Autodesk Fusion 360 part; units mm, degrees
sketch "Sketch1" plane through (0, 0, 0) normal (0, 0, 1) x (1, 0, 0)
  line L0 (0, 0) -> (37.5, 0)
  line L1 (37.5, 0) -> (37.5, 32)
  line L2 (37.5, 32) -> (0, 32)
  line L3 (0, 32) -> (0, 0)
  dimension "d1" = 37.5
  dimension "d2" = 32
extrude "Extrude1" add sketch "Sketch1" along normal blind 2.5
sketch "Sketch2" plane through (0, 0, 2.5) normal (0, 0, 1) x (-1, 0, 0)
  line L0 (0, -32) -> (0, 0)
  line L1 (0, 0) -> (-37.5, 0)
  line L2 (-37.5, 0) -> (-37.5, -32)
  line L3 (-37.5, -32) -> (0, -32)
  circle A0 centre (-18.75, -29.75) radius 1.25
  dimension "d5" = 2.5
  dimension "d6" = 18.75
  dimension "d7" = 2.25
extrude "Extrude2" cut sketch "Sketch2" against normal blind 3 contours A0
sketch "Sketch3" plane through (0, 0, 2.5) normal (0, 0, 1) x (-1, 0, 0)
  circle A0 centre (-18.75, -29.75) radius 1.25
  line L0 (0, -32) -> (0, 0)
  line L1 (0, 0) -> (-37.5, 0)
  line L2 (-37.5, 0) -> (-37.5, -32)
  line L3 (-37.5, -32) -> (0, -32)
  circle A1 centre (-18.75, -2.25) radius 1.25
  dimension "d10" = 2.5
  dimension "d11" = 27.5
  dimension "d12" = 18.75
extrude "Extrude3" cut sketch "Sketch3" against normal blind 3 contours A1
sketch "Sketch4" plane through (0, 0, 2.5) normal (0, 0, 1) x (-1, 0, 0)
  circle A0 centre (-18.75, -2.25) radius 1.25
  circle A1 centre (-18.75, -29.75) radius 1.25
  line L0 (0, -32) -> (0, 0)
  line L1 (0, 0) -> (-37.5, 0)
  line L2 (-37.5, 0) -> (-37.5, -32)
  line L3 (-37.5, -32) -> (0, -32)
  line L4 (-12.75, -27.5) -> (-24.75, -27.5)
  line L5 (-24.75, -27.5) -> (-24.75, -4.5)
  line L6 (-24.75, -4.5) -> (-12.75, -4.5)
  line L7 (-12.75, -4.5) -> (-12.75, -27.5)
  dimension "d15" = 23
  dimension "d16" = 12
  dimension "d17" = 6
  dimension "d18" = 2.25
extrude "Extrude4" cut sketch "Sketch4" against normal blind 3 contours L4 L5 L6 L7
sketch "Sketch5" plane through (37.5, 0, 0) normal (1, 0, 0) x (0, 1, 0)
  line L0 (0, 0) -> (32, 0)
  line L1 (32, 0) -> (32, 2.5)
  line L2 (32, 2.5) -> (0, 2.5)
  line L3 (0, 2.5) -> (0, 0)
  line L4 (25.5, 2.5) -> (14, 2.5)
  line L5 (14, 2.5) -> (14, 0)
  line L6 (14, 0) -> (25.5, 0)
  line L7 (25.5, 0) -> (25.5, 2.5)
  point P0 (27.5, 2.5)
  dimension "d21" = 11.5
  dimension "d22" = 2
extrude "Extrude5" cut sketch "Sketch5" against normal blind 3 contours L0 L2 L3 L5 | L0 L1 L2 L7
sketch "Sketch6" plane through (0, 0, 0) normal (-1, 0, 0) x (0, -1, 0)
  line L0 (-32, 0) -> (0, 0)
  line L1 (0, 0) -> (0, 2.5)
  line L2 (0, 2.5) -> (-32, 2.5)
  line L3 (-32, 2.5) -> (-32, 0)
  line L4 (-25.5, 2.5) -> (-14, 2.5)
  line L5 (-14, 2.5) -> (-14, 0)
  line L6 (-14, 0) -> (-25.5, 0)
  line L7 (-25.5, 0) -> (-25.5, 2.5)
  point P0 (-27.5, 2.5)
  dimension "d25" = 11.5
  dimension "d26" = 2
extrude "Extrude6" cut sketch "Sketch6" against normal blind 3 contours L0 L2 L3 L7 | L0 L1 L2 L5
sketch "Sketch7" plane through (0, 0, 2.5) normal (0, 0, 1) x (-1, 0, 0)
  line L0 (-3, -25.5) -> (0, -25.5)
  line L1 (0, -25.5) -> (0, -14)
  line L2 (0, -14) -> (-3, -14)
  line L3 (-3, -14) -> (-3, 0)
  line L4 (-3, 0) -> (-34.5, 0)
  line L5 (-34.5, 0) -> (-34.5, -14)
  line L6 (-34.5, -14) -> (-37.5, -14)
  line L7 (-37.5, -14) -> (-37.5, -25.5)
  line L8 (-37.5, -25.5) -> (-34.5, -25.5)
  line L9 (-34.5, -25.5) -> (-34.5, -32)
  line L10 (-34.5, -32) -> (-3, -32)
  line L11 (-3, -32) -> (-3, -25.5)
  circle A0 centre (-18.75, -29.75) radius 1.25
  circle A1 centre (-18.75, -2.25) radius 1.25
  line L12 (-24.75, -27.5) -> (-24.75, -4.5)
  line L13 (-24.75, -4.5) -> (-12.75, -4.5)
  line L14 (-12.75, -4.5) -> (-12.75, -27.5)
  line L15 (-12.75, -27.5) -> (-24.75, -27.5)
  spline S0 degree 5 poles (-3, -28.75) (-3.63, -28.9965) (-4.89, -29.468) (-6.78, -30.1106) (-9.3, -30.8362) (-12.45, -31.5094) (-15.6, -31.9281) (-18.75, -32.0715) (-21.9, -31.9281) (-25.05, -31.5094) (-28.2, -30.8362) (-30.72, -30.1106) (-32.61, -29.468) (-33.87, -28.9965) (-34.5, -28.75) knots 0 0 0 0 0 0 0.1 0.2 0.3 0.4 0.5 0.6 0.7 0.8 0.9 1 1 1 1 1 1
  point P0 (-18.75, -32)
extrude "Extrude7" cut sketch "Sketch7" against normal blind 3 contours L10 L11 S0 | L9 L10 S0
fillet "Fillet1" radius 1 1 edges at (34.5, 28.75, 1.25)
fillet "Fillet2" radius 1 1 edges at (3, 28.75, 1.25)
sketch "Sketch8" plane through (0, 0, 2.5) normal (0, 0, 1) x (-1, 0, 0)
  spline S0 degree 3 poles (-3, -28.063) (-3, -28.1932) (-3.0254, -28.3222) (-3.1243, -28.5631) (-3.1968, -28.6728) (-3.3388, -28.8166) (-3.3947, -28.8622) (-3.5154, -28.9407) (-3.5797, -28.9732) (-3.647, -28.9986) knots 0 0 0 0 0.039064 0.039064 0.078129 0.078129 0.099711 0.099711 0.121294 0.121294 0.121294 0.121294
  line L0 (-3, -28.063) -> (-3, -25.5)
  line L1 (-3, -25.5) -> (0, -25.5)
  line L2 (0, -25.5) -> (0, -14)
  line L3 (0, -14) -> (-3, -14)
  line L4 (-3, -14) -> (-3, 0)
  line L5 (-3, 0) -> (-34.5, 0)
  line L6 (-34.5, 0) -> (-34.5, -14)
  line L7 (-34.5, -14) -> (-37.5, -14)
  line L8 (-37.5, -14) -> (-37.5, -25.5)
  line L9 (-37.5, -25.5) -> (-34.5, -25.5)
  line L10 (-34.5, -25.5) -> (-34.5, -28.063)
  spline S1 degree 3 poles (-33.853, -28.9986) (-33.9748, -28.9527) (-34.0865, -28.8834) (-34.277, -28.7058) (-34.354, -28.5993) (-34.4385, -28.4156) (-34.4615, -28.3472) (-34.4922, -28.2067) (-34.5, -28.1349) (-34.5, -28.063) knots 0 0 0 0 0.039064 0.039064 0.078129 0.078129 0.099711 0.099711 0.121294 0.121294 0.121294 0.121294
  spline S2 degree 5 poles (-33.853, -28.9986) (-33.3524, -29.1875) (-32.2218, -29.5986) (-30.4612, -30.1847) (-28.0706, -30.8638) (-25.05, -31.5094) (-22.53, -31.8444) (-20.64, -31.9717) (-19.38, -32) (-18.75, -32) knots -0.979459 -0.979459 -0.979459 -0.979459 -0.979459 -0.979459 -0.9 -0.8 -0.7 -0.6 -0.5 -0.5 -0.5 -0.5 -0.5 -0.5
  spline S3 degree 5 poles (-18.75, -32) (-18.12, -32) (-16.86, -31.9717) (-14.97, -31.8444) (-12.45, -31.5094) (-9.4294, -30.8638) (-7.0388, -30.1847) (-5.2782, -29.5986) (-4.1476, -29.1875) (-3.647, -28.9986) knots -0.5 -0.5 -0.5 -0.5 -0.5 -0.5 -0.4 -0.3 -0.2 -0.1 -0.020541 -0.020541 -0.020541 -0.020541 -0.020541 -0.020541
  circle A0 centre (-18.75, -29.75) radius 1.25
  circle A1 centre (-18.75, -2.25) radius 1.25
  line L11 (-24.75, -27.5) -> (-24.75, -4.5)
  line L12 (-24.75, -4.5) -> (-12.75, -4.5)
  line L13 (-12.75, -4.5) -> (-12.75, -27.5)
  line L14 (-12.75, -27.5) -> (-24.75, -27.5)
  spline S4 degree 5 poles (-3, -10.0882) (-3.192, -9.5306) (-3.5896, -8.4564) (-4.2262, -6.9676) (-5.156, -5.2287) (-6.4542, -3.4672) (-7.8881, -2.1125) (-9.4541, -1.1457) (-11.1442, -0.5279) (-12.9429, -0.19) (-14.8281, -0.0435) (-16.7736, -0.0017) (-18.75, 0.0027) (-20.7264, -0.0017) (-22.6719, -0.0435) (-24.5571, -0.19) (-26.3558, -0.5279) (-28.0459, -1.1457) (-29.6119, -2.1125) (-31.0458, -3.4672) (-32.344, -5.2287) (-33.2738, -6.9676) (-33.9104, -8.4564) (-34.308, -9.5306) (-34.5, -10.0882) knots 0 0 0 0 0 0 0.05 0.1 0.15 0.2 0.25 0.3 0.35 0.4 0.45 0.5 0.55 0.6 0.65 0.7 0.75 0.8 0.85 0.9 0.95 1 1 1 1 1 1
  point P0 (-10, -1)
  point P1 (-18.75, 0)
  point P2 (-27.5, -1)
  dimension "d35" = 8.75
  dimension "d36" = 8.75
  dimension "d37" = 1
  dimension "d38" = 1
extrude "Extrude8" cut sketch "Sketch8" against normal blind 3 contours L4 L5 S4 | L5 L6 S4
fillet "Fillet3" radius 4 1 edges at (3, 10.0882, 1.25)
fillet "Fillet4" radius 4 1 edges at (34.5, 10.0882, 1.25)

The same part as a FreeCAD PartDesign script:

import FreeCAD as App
import Part
import Sketcher
from FreeCAD import Vector
Q = App.Units.Quantity


def edges_at(feature, points):
    """Names of the edges that pass closest to the given points."""
    edges = feature.Shape.Edges
    near = lambda p: min(range(len(edges)), key=lambda i: edges[i].distToShape(Part.Vertex(*p))[0])
    return sorted({f"Edge{near(p) + 1}" for p in points})


def add_polygon(sketch, points):
    """Adds a closed chain of lines whose ends are joined by coincident constraints."""
    first, n = sketch.GeometryCount, len(points)
    for a, b in zip(points, points[1:] + points[:1]):
        sketch.addGeometry(Part.LineSegment(App.Vector(*a, 0), App.Vector(*b, 0)), False)
    for i in range(n):
        sketch.addConstraint(Sketcher.Constraint("Coincident", first + i, 2, first + (i + 1) % n, 1))

doc = App.newDocument("Part")
params = doc.addObject("Spreadsheet::Sheet", "Params")
for row, (alias, value) in enumerate([
    ("sketch1_height", "32 mm"),
    ("sketch1_width", "37.5 mm"),
    ("pad1_length", "2.5 mm"),
    ("sketch2_diameter", "2.5 mm"),
    ("pocket1_length", "3 mm"),
    ("sketch3_diameter", "2.5 mm"),
    ("pocket2_length", "3 mm"),
    ("sketch4_width", "12 mm"),
    ("sketch4_height", "23 mm"),
    ("pocket3_length", "3 mm"),
    ("sketch5_width", "14 mm"),
    ("sketch5_width2", "6.5 mm"),
    ("sketch5_height", "2.5 mm"),
    ("pocket4_length", "3 mm"),
    ("sketch6_width", "14 mm"),
    ("sketch6_width2", "6.5 mm"),
    ("sketch6_height", "2.5 mm"),
    ("pocket5_length", "3 mm"),
    ("pocket6_length", "3 mm"),
    ("fillet_radius", "1 mm"),
    ("fillet2_radius", "1 mm"),
    ("pocket7_length", "3 mm"),
    ("fillet3_radius", "4 mm"),
    ("fillet4_radius", "4 mm"),
], start=1):
    params.set(f"A{row}", alias)
    params.set(f"B{row}", "=" + value)
    params.setAlias(f"B{row}", alias)

body = doc.addObject("PartDesign::Body", "Body")

sketch1 = body.newObject("Sketcher::SketchObject", "Sketch")
sketch1.AttachmentSupport = (doc.getObject("XY_Plane"), [""])
sketch1.MapMode = "FlatFace"
add_polygon(sketch1, [(0, 32), (0, 0), (38, 0), (38, 32)])
sketch1.addConstraint([
    Sketcher.Constraint("Vertical", 0),
    Sketcher.Constraint("Horizontal", 1),
    Sketcher.Constraint("Vertical", 2),
    Sketcher.Constraint("Horizontal", 3),
    Sketcher.Constraint("Coincident", 0, 2, -1, 1),
    Sketcher.Constraint("DistanceY", 0, 2, 0, 1, Q("32 mm")),
    Sketcher.Constraint("DistanceX", 1, 1, 1, 2, Q("37.5 mm")),
])
sketch1.setExpression("Constraints[9]", "Params.sketch1_height")
sketch1.setExpression("Constraints[10]", "Params.sketch1_width")
pad1 = body.newObject("PartDesign::Pad", "Pad")
pad1.Profile = sketch1
pad1.setExpression("Length", "Params.pad1_length")

sketch2 = body.newObject("Sketcher::SketchObject", "Sketch001")
sketch2.AttachmentSupport = (doc.getObject("XY_Plane"), [""])
sketch2.MapMode = "FlatFace"
sketch2.AttachmentOffset = App.Placement(Vector(0, 0, 2.5), App.Rotation())
sketch2.addGeometry(Part.Circle(Vector(18.8, 29.8, 0), Vector(0, 0, 1), 1.2), False)
sketch2.addConstraint([
    Sketcher.Constraint("Diameter", 0, Q("2.5 mm")),
    Sketcher.Constraint("DistanceX", -1, 1, 0, 3, Q("18.75 mm")),
    Sketcher.Constraint("DistanceY", -1, 1, 0, 3, Q("29.75 mm")),
])
sketch2.setExpression("Constraints[0]", "Params.sketch2_diameter")
pocket1 = body.newObject("PartDesign::Pocket", "Pocket")
pocket1.Profile = sketch2
pocket1.setExpression("Length", "Params.pocket1_length")

sketch3 = body.newObject("Sketcher::SketchObject", "Sketch002")
sketch3.AttachmentSupport = (doc.getObject("XY_Plane"), [""])
sketch3.MapMode = "FlatFace"
sketch3.AttachmentOffset = App.Placement(Vector(0, 0, 2.5), App.Rotation())
sketch3.addGeometry(Part.Circle(Vector(18.8, 2.2, 0), Vector(0, 0, 1), 1.2), False)
sketch3.addConstraint([
    Sketcher.Constraint("Diameter", 0, Q("2.5 mm")),
    Sketcher.Constraint("DistanceX", -1, 1, 0, 3, Q("18.75 mm")),
    Sketcher.Constraint("DistanceY", -1, 1, 0, 3, Q("2.25 mm")),
])
sketch3.setExpression("Constraints[0]", "Params.sketch3_diameter")
pocket2 = body.newObject("PartDesign::Pocket", "Pocket001")
pocket2.Profile = sketch3
pocket2.setExpression("Length", "Params.pocket2_length")

sketch4 = body.newObject("Sketcher::SketchObject", "Sketch003")
sketch4.AttachmentSupport = (doc.getObject("XY_Plane"), [""])
sketch4.MapMode = "FlatFace"
sketch4.AttachmentOffset = App.Placement(Vector(0, 0, 2.5), App.Rotation())
add_polygon(sketch4, [(25, 28), (13, 28), (13, 4), (25, 4)])
sketch4.addConstraint([
    Sketcher.Constraint("Horizontal", 0),
    Sketcher.Constraint("Vertical", 1),
    Sketcher.Constraint("Horizontal", 2),
    Sketcher.Constraint("Vertical", 3),
    Sketcher.Constraint("DistanceX", 0, 2, 0, 1, Q("12 mm")),
    Sketcher.Constraint("DistanceY", 1, 2, 1, 1, Q("23 mm")),
    Sketcher.Constraint("DistanceY", -1, 1, 0, 2, Q("27.5 mm")),
    Sketcher.Constraint("DistanceX", -1, 1, 0, 2, Q("12.75 mm")),
])
sketch4.setExpression("Constraints[8]", "Params.sketch4_width")
sketch4.setExpression("Constraints[9]", "Params.sketch4_height")
pocket3 = body.newObject("PartDesign::Pocket", "Pocket002")
pocket3.Profile = sketch4
pocket3.setExpression("Length", "Params.pocket3_length")

sketch5 = body.newObject("Sketcher::SketchObject", "Sketch004")
sketch5.AttachmentSupport = (doc.getObject("YZ_Plane"), [""])
sketch5.MapMode = "FlatFace"
sketch5.AttachmentOffset = App.Placement(Vector(0, 0, 37.5), App.Rotation())
add_polygon(sketch5, [(0, 2.5), (0, 0), (14, 0), (14, 2.5)])
add_polygon(sketch5, [(25.5, 2.5), (25.5, 0), (32, 0), (32, 2.5)])
sketch5.addConstraint([
    Sketcher.Constraint("Vertical", 0),
    Sketcher.Constraint("Horizontal", 1),
    Sketcher.Constraint("Vertical", 2),
    Sketcher.Constraint("Horizontal", 3),
    Sketcher.Constraint("Vertical", 4),
    Sketcher.Constraint("Horizontal", 5),
    Sketcher.Constraint("Vertical", 6),
    Sketcher.Constraint("Horizontal", 7),
    Sketcher.Constraint("Coincident", 0, 2, -1, 1),
    Sketcher.Constraint("PointOnObject", 4, 2, -1),
    Sketcher.Constraint("Horizontal", 3, 2, 6, 2),
    Sketcher.Constraint("DistanceX", 1, 2, 4, 2, Q("11.5 mm")),
    Sketcher.Constraint("DistanceX", 1, 1, 1, 2, Q("14 mm")),
    Sketcher.Constraint("DistanceX", 5, 1, 5, 2, Q("6.5 mm")),
    Sketcher.Constraint("DistanceY", 0, 2, 0, 1, Q("2.5 mm")),
])
sketch5.setExpression("Constraints[20]", "Params.sketch5_width")
sketch5.setExpression("Constraints[21]", "Params.sketch5_width2")
sketch5.setExpression("Constraints[22]", "Params.sketch5_height")
pocket4 = body.newObject("PartDesign::Pocket", "Pocket003")
pocket4.Profile = sketch5
pocket4.setExpression("Length", "Params.pocket4_length")

sketch6 = body.newObject("Sketcher::SketchObject", "Sketch005")
sketch6.AttachmentSupport = (doc.getObject("YZ_Plane"), [""])
sketch6.MapMode = "FlatFace"
add_polygon(sketch6, [(32, 2.5), (32, 0), (25.5, 0), (25.5, 2.5)])
add_polygon(sketch6, [(14, 2.5), (14, 0), (0, 0), (0, 2.5)])
sketch6.addConstraint([
    Sketcher.Constraint("Vertical", 0),
    Sketcher.Constraint("Horizontal", 1),
    Sketcher.Constraint("Vertical", 2),
    Sketcher.Constraint("Horizontal", 3),
    Sketcher.Constraint("Vertical", 4),
    Sketcher.Constraint("Horizontal", 5),
    Sketcher.Constraint("Vertical", 6),
    Sketcher.Constraint("Horizontal", 7),
    Sketcher.Constraint("Coincident", 5, 2, -1, 1),
    Sketcher.Constraint("PointOnObject", 0, 2, -1),
    Sketcher.Constraint("Horizontal", 3, 2, 6, 2),
    Sketcher.Constraint("DistanceX", 4, 2, 1, 2, Q("11.5 mm")),
    Sketcher.Constraint("DistanceX", 5, 2, 5, 1, Q("14 mm")),
    Sketcher.Constraint("DistanceX", 1, 2, 1, 1, Q("6.5 mm")),
    Sketcher.Constraint("DistanceY", 0, 2, 0, 1, Q("2.5 mm")),
])
sketch6.setExpression("Constraints[20]", "Params.sketch6_width")
sketch6.setExpression("Constraints[21]", "Params.sketch6_width2")
sketch6.setExpression("Constraints[22]", "Params.sketch6_height")
pocket5 = body.newObject("PartDesign::Pocket", "Pocket004")
pocket5.Profile = sketch6
pocket5.setExpression("Length", "Params.pocket5_length")
pocket5.Reversed = True

sketch7 = body.newObject("Sketcher::SketchObject", "Sketch006")
sketch7.AttachmentSupport = (doc.getObject("XY_Plane"), [""])
sketch7.MapMode = "FlatFace"
sketch7.AttachmentOffset = App.Placement(Vector(0, 0, 2.5), App.Rotation())
sketch7.addGeometry([
    Part.LineSegment(Vector(3, 32, 0), Vector(3, 28.75, 0)),
    Part.BSplineCurve([Vector(3, 28.75, 0), Vector(3.63, 28.9965, 0), Vector(4.89, 29.468, 0), Vector(6.78, 30.1106, 0), Vector(9.3, 30.8362, 0), Vector(12.45, 31.5094, 0), Vector(14.97, 31.84436, 0), Vector(16.86, 31.971695, 0), Vector(18.12, 31.999992, 0), Vector(18.75, 31.999992, 0)], [6, 1, 1, 1, 1, 6], [0, 0.1, 0.2, 0.3, 0.4, 0.49999999], False, 5, [1, 1, 1, 1, 1, 1, 1, 1, 1, 1], False),
    Part.LineSegment(Vector(18.75, 32, 0), Vector(3, 32, 0)),
    Part.LineSegment(Vector(34.5, 32, 0), Vector(18.75, 32, 0)),
    Part.BSplineCurve([Vector(18.75, 31.999992, 0), Vector(18.75, 31.999992, 0), Vector(19.38, 31.999992, 0), Vector(20.64, 31.971695, 0), Vector(22.53, 31.84436, 0), Vector(25.05, 31.5094, 0), Vector(28.2, 30.8362, 0), Vector(30.72, 30.1106, 0), Vector(32.61, 29.468, 0), Vector(33.87, 28.9965, 0), Vector(34.5, 28.75, 0)], [6, 1, 1, 1, 1, 1, 6], [0.49999999, 0.5, 0.6, 0.7, 0.8, 0.9, 1], False, 5, [1, 1, 1, 1, 1, 1, 1, 1, 1, 1, 1], False),
    Part.LineSegment(Vector(34.5, 28.75, 0), Vector(34.5, 32, 0)),
], False)
sketch7.addConstraint([
    Sketcher.Constraint("Block", 1),
    Sketcher.Constraint("Block", 4),
    Sketcher.Constraint("Coincident", 0, 2, 1, 1),
    Sketcher.Constraint("Coincident", 1, 2, 2, 1),
    Sketcher.Constraint("Coincident", 2, 2, 0, 1),
    Sketcher.Constraint("Coincident", 3, 2, 4, 1),
    Sketcher.Constraint("Coincident", 4, 2, 5, 1),
    Sketcher.Constraint("Coincident", 5, 2, 3, 1),
    Sketcher.Constraint("Vertical", 0),
    Sketcher.Constraint("Horizontal", 2),
    Sketcher.Constraint("Horizontal", 3),
    Sketcher.Constraint("Vertical", 5),
])
pocket6 = body.newObject("PartDesign::Pocket", "Pocket005")
pocket6.Profile = sketch7
pocket6.setExpression("Length", "Params.pocket6_length")
doc.recompute()

fillet = body.newObject("PartDesign::Fillet", "Fillet")
fillet.Base = (pocket6, edges_at(pocket6, [(34.5, 28.75, 1.25)]))
fillet.setExpression("Radius", "Params.fillet_radius")
doc.recompute()

fillet2 = body.newObject("PartDesign::Fillet", "Fillet001")
fillet2.Base = (fillet, edges_at(fillet, [(3, 28.75, 1.25)]))
fillet2.setExpression("Radius", "Params.fillet2_radius")

sketch8 = body.newObject("Sketcher::SketchObject", "Sketch007")
sketch8.AttachmentSupport = (doc.getObject("XY_Plane"), [""])
sketch8.MapMode = "FlatFace"
sketch8.AttachmentOffset = App.Placement(Vector(0, 0, 2.5), App.Rotation())
sketch8.addGeometry([
    Part.BSplineCurve([Vector(3, 10.0882, 0), Vector(3.192, 9.5306, 0), Vector(3.5896, 8.4564, 0), Vector(4.2262, 6.9676, 0), Vector(5.156, 5.2287, 0), Vector(6.4542, 3.4672, 0), Vector(7.8881, 2.1125, 0), Vector(9.4541, 1.1457, 0), Vector(11.1442, 0.5279, 0), Vector(12.9429, 0.19, 0), Vector(14.8281, 0.0435, 0), Vector(16.3845, 0.01006, 0), Vector(17.565705, 0.00181, 0), Vector(18.355235, -0.000023, 0), Vector(18.75, -0.000023, 0)], [6, 1, 1, 1, 1, 1, 1, 1, 1, 1, 6], [0, 0.05, 0.1, 0.15, 0.2, 0.25, 0.3, 0.35, 0.4, 0.45, 0.5], False, 5, [1, 1, 1, 1, 1, 1, 1, 1, 1, 1, 1, 1, 1, 1, 1], False),
    Part.LineSegment(Vector(3, 10.0882, 0), Vector(3, 0, 0)),
    Part.LineSegment(Vector(3, 0, 0), Vector(18.75, 0, 0)),
    Part.BSplineCurve([Vector(18.75, -0.000023, 0), Vector(19.144765, -0.000023, 0), Vector(19.934295, 0.00181, 0), Vector(21.1155, 0.01006, 0), Vector(22.6719, 0.0435, 0), Vector(24.5571, 0.19, 0), Vector(26.3558, 0.5279, 0), Vector(28.0459, 1.1457, 0), Vector(29.6119, 2.1125, 0), Vector(31.0458, 3.4672, 0), Vector(32.344, 5.2287, 0), Vector(33.2738, 6.9676, 0), Vector(33.9104, 8.4564, 0), Vector(34.308, 9.5306, 0), Vector(34.5, 10.0882, 0)], [6, 1, 1, 1, 1, 1, 1, 1, 1, 1, 6], [0.5, 0.55, 0.6, 0.65, 0.7, 0.75, 0.8, 0.85, 0.9, 0.95, 1], False, 5, [1, 1, 1, 1, 1, 1, 1, 1, 1, 1, 1, 1, 1, 1, 1], False),
    Part.LineSegment(Vector(18.75, 0, 0), Vector(34.5, 0, 0)),
    Part.LineSegment(Vector(34.5, 0, 0), Vector(34.5, 10.0882, 0)),
], False)
sketch8.addConstraint([
    Sketcher.Constraint("Block", 0),
    Sketcher.Constraint("Block", 3),
    Sketcher.Constraint("Coincident", 0, 1, 1, 1),
    Sketcher.Constraint("Coincident", 1, 2, 2, 1),
    Sketcher.Constraint("Coincident", 2, 2, 0, 2),
    Sketcher.Constraint("Coincident", 3, 1, 4, 1),
    Sketcher.Constraint("Coincident", 4, 2, 5, 1),
    Sketcher.Constraint("Coincident", 5, 2, 3, 2),
    Sketcher.Constraint("Vertical", 1),
    Sketcher.Constraint("Horizontal", 2),
    Sketcher.Constraint("Horizontal", 4),
    Sketcher.Constraint("Vertical", 5),
])
pocket7 = body.newObject("PartDesign::Pocket", "Pocket006")
pocket7.Profile = sketch8
pocket7.setExpression("Length", "Params.pocket7_length")
doc.recompute()

fillet3 = body.newObject("PartDesign::Fillet", "Fillet002")
fillet3.Base = (pocket7, edges_at(pocket7, [(3, 10.088, 1.25)]))
fillet3.setExpression("Radius", "Params.fillet3_radius")
doc.recompute()

fillet4 = body.newObject("PartDesign::Fillet", "Fillet003")
fillet4.Base = (fillet3, edges_at(fillet3, [(34.5, 10.088, 1.25)]))
fillet4.setExpression("Radius", "Params.fillet4_radius")

doc.recompute()
